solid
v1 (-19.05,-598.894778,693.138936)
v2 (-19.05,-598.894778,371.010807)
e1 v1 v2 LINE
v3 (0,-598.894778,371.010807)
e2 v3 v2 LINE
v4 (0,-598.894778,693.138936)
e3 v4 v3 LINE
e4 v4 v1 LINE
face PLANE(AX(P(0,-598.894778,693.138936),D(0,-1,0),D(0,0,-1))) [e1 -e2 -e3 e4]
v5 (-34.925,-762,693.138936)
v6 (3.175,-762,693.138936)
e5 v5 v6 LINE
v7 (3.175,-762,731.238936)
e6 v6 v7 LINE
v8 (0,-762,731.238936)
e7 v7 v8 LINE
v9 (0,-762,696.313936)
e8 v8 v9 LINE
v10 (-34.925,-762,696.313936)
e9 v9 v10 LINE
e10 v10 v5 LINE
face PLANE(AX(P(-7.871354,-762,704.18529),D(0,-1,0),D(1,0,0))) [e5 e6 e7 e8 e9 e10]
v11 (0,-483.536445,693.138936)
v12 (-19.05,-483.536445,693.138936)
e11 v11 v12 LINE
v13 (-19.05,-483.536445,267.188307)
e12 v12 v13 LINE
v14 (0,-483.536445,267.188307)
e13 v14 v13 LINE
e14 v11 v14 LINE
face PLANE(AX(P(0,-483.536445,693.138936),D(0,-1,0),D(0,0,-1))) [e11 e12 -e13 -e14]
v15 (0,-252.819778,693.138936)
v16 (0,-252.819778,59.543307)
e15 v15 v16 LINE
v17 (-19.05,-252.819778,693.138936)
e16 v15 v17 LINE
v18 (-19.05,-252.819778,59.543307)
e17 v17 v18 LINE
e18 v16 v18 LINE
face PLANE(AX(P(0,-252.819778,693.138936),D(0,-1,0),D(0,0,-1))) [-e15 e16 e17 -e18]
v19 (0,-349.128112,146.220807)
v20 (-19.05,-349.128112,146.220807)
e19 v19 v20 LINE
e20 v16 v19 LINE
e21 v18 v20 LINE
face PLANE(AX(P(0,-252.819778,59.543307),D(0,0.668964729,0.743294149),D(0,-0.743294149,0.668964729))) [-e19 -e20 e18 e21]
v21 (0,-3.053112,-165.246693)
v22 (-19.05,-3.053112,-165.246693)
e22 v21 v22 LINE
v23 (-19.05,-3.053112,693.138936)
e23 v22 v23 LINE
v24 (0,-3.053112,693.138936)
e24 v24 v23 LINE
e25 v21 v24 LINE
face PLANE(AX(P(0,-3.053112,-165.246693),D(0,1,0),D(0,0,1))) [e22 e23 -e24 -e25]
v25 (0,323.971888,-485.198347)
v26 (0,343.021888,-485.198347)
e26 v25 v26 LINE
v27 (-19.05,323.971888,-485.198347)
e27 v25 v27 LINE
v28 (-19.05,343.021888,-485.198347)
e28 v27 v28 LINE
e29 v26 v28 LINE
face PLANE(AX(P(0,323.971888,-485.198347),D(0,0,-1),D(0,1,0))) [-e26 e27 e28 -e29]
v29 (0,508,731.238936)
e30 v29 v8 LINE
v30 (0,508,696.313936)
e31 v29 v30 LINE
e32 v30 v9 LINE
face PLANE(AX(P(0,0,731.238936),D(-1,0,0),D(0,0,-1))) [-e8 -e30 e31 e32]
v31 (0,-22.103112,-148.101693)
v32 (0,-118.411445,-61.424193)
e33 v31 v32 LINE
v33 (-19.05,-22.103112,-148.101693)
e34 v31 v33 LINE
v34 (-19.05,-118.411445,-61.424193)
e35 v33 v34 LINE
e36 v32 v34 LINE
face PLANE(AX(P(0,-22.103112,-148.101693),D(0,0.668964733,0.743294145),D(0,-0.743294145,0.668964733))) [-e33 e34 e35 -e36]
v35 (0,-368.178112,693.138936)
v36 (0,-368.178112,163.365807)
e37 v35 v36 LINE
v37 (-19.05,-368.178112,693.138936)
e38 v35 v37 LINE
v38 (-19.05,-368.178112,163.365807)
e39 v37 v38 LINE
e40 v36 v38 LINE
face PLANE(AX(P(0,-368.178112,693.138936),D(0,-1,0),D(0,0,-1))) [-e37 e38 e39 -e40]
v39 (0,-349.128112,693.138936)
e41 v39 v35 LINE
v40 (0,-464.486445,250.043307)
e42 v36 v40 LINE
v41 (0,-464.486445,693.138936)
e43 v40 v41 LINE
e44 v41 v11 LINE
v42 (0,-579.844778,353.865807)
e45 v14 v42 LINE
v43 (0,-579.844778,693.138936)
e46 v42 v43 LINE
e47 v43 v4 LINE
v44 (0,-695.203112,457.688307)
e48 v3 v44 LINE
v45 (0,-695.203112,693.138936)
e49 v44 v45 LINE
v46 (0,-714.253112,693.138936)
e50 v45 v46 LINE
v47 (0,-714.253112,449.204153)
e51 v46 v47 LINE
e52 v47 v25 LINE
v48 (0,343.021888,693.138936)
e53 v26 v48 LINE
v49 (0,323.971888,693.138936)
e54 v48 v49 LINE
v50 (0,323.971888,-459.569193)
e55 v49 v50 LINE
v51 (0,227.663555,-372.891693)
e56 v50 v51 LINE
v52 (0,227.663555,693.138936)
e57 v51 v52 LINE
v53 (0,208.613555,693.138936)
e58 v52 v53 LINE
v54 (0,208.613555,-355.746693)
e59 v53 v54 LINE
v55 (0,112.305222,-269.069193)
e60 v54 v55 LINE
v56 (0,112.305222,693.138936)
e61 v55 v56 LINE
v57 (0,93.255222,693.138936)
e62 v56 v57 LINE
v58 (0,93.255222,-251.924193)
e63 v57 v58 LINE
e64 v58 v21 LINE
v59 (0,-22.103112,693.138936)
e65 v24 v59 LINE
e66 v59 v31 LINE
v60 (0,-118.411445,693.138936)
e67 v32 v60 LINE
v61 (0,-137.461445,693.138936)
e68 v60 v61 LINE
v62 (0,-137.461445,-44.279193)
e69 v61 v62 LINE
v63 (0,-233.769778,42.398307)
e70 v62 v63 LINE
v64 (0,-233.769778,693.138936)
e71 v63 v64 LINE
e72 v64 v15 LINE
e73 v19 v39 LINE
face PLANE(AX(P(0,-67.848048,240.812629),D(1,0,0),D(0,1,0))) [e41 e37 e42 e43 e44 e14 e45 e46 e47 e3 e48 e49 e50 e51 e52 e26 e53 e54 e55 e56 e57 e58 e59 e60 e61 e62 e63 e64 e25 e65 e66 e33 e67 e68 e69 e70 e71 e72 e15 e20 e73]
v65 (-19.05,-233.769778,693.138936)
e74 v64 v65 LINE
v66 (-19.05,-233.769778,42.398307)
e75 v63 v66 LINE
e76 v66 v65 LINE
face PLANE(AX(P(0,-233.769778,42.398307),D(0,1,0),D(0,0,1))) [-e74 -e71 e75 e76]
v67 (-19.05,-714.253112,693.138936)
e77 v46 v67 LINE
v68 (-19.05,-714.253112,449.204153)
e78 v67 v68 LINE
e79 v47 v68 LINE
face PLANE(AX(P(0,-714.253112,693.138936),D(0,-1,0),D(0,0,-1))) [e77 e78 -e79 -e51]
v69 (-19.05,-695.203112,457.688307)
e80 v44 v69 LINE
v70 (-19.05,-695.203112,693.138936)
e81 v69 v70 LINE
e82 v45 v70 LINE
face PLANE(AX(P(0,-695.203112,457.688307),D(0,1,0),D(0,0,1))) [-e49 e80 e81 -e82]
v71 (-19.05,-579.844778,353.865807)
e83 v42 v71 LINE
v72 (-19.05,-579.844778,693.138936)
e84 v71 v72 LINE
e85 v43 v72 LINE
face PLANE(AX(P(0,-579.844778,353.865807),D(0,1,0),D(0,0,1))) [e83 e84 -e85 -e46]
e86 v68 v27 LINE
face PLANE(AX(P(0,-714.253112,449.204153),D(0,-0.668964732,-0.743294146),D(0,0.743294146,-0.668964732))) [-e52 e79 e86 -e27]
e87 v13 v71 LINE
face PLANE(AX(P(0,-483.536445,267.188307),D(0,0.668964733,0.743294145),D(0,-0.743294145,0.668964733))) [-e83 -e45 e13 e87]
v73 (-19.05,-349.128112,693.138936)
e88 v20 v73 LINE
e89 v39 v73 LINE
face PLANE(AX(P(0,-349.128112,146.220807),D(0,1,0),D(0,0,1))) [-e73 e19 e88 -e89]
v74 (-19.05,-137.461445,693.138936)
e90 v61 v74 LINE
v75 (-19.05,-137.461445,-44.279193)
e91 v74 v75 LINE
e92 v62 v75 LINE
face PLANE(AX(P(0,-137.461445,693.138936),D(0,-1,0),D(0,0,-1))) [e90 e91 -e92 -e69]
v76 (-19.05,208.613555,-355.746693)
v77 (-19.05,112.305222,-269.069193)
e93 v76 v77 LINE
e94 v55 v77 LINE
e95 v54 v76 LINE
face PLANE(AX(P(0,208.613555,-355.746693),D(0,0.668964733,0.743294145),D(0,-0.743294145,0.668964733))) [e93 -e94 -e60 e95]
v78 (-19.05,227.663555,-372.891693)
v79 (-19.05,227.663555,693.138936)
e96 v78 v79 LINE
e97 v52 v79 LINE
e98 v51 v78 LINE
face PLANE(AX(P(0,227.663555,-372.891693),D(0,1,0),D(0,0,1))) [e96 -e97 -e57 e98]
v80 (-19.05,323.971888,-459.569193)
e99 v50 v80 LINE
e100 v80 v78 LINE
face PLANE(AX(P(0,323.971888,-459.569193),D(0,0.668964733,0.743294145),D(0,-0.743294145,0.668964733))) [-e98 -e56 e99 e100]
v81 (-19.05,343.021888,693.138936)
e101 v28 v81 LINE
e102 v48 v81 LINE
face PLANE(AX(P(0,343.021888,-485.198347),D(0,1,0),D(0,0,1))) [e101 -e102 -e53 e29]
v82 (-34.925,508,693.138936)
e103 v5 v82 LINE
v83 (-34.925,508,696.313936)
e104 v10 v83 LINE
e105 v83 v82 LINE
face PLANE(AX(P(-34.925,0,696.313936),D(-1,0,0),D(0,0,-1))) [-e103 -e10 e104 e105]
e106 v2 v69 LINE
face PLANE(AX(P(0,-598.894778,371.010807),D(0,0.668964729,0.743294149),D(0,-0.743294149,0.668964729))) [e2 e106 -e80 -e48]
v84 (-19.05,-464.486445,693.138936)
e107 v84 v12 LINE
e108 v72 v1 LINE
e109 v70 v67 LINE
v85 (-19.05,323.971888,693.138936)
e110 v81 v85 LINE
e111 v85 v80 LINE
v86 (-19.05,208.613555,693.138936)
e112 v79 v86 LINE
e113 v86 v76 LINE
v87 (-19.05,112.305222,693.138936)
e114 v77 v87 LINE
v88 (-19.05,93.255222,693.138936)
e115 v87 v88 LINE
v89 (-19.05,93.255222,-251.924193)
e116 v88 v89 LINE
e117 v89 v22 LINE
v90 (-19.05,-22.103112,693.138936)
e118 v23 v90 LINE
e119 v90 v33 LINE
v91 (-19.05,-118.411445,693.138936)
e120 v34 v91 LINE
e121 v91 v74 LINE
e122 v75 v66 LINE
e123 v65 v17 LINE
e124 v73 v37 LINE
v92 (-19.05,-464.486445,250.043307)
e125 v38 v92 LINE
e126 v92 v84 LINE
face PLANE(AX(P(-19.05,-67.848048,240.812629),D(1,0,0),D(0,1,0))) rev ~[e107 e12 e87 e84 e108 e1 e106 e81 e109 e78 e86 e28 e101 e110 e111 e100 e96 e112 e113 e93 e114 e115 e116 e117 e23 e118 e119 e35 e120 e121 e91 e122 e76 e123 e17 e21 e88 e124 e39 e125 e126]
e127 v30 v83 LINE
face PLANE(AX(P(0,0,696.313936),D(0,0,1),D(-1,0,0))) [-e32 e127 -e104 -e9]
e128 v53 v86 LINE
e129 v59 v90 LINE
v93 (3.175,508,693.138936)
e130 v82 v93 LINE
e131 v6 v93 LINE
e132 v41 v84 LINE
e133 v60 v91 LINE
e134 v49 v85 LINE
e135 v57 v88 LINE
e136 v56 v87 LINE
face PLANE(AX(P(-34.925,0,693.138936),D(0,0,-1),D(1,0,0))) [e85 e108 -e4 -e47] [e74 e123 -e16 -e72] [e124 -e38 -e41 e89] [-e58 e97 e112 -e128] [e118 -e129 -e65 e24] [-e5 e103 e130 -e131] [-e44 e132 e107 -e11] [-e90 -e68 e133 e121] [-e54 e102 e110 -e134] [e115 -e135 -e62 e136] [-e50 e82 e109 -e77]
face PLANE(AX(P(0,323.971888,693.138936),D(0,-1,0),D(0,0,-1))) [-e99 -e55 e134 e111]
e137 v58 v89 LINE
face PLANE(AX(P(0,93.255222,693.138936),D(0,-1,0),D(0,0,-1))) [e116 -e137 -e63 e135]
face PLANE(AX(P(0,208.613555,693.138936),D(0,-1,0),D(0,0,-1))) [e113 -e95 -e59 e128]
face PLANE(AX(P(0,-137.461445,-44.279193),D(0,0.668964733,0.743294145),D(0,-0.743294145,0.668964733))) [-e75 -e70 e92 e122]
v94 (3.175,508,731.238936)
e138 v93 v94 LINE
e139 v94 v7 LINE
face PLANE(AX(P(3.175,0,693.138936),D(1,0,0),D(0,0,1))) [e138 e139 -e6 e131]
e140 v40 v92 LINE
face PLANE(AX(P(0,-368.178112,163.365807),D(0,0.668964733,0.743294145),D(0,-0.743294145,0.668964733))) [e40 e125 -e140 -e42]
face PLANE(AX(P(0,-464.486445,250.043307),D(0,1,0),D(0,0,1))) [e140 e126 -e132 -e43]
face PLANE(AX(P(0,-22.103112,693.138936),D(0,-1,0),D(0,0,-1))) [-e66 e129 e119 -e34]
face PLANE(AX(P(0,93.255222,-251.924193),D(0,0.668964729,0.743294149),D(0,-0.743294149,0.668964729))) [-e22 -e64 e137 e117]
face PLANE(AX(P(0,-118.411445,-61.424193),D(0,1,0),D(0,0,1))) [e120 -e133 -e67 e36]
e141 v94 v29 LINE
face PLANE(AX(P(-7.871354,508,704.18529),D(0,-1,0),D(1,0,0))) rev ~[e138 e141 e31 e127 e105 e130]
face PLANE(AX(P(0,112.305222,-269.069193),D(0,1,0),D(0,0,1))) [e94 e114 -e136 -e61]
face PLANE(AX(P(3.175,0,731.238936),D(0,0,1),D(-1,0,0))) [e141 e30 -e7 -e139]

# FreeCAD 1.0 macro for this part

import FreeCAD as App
import Part
import Sketcher
Q = App.Units.Quantity


def add_polygon(sketch, points):
    """Adds a closed chain of lines whose ends are joined by coincident constraints."""
    first, n = sketch.GeometryCount, len(points)
    for a, b in zip(points, points[1:] + points[:1]):
        sketch.addGeometry(Part.LineSegment(App.Vector(*a, 0), App.Vector(*b, 0)), False)
    for i in range(n):
        sketch.addConstraint(Sketcher.Constraint("Coincident", first + i, 2, first + (i + 1) % n, 1))

doc = App.newDocument("Part")
params = doc.addObject("Spreadsheet::Sheet", "Params")
for row, (alias, value) in enumerate([
    ("sketch1_width", "1.5 in"),
    ("sketch1_width2", "0.125 in"),
    ("pad1_length", "30 in"),
    ("pad1_length2", "20 in"),
    ("sketch2_width", "0.75 in"),
    ("pad2_length", "0.75 in"),
], start=1):
    params.set(f"A{row}", alias)
    params.set(f"B{row}", "=" + value)
    params.setAlias(f"B{row}", alias)

body = doc.addObject("PartDesign::Body", "Body")

# Sketch on XZ plane
sketch1 = body.newObject("Sketcher::SketchObject", "Sketch")
sketch1.AttachmentSupport = (doc.getObject("XZ_Plane"), [""])
sketch1.MapMode = "FlatFace"
add_polygon(sketch1, [(3.2, 693.1), (3.2, 731.2), (0, 731.2), (0, 696.3), (-34.9, 696.3), (-34.9, 693.1)])  # lines 0-5
sketch1.addConstraint(Sketcher.Constraint("Vertical", 0))
sketch1.addConstraint(Sketcher.Constraint("Horizontal", 1))
sketch1.addConstraint(Sketcher.Constraint("Vertical", 2))
sketch1.addConstraint(Sketcher.Constraint("Horizontal", 3))
sketch1.addConstraint(Sketcher.Constraint("Vertical", 4))
sketch1.addConstraint(Sketcher.Constraint("Horizontal", 5))
sketch1.addConstraint(Sketcher.Constraint("PointOnObject", 1, 2, -2))
sketch1.addConstraint(Sketcher.Constraint("Equal", 5, 0))
sketch1.addConstraint(Sketcher.Constraint("Equal", 3, 2))
sketch1.addConstraint(Sketcher.Constraint("DistanceX", 5, 1, 5, 2, Q("1.5 in")))
sketch1.addConstraint(Sketcher.Constraint("DistanceX", 1, 2, 1, 1, Q("0.125 in")))
sketch1.addConstraint(Sketcher.Constraint("DistanceY", -1, 1, 0, 2, Q("731.238936 mm")))
sketch1.setExpression("Constraints[15]", "Params.sketch1_width")
sketch1.setExpression("Constraints[16]", "Params.sketch1_width2")
pad1 = body.newObject("PartDesign::Pad", "Pad")
pad1.Profile = sketch1
pad1.Type = "TwoLengths"
pad1.setExpression("Length", "Params.pad1_length")
pad1.setExpression("Length2", "Params.pad1_length2")

# Sketch on YZ plane
sketch2 = body.newObject("Sketcher::SketchObject", "Sketch001")
sketch2.AttachmentSupport = (doc.getObject("YZ_Plane"), [""])
sketch2.MapMode = "FlatFace"
add_polygon(sketch2, [(-695, 693), (-714, 693), (-714, 449), (324, -485), (343, -485), (343, 693), (324, 693), (324, -460), (228, -373), (228, 693), (209, 693), (209, -356), (112, -269), (112, 693), (93, 693), (93, -252), (-3, -165), (-3, 693), (-22, 693), (-22, -148), (-118, -61), (-118, 693), (-137, 693), (-137, -44), (-234, 42), (-234, 693), (-253, 693), (-253, 60), (-349, 146), (-349, 693), (-368, 693), (-368, 163), (-464, 250), (-464, 693), (-484, 693), (-484, 267), (-580, 354), (-580, 693), (-599, 693), (-599, 371), (-695, 458)])  # lines 0-40
sketch2.addConstraint(Sketcher.Constraint("Horizontal", 0))
sketch2.addConstraint(Sketcher.Constraint("Vertical", 1))
sketch2.addConstraint(Sketcher.Constraint("Horizontal", 3))
sketch2.addConstraint(Sketcher.Constraint("Vertical", 4))
sketch2.addConstraint(Sketcher.Constraint("Horizontal", 5))
sketch2.addConstraint(Sketcher.Constraint("Vertical", 6))
sketch2.addConstraint(Sketcher.Constraint("Vertical", 8))
sketch2.addConstraint(Sketcher.Constraint("Horizontal", 9))
sketch2.addConstraint(Sketcher.Constraint("Vertical", 10))
sketch2.addConstraint(Sketcher.Constraint("Vertical", 12))
sketch2.addConstraint(Sketcher.Constraint("Horizontal", 13))
sketch2.addConstraint(Sketcher.Constraint("Vertical", 14))
sketch2.addConstraint(Sketcher.Constraint("Vertical", 16))
sketch2.addConstraint(Sketcher.Constraint("Horizontal", 17))
sketch2.addConstraint(Sketcher.Constraint("Vertical", 18))
sketch2.addConstraint(Sketcher.Constraint("Vertical", 20))
sketch2.addConstraint(Sketcher.Constraint("Horizontal", 21))
sketch2.addConstraint(Sketcher.Constraint("Vertical", 22))
sketch2.addConstraint(Sketcher.Constraint("Vertical", 24))
sketch2.addConstraint(Sketcher.Constraint("Horizontal", 25))
sketch2.addConstraint(Sketcher.Constraint("Vertical", 26))
sketch2.addConstraint(Sketcher.Constraint("Vertical", 28))
sketch2.addConstraint(Sketcher.Constraint("Horizontal", 29))
sketch2.addConstraint(Sketcher.Constraint("Vertical", 30))
sketch2.addConstraint(Sketcher.Constraint("Vertical", 32))
sketch2.addConstraint(Sketcher.Constraint("Horizontal", 33))
sketch2.addConstraint(Sketcher.Constraint("Vertical", 34))
sketch2.addConstraint(Sketcher.Constraint("Vertical", 36))
sketch2.addConstraint(Sketcher.Constraint("Horizontal", 37))
sketch2.addConstraint(Sketcher.Constraint("Vertical", 38))
sketch2.addConstraint(Sketcher.Constraint("Vertical", 40))
sketch2.addConstraint(Sketcher.Constraint("Parallel", 2, 7))
sketch2.addConstraint(Sketcher.Constraint("Parallel", 7, 11))
sketch2.addConstraint(Sketcher.Constraint("Parallel", 11, 15))
sketch2.addConstraint(Sketcher.Constraint("Parallel", 15, 19))
sketch2.addConstraint(Sketcher.Constraint("Parallel", 19, 23))
sketch2.addConstraint(Sketcher.Constraint("Parallel", 23, 27))
sketch2.addConstraint(Sketcher.Constraint("Parallel", 27, 31))
sketch2.addConstraint(Sketcher.Constraint("Parallel", 31, 35))
sketch2.addConstraint(Sketcher.Constraint("Parallel", 35, 39))
sketch2.addConstraint(Sketcher.Constraint("Horizontal", 0, 2, 4, 2))
sketch2.addConstraint(Sketcher.Constraint("Horizontal", 5, 2, 8, 2))
sketch2.addConstraint(Sketcher.Constraint("Horizontal", 9, 2, 12, 2))
sketch2.addConstraint(Sketcher.Constraint("Horizontal", 13, 2, 16, 2))
sketch2.addConstraint(Sketcher.Constraint("Horizontal", 17, 2, 20, 2))
sketch2.addConstraint(Sketcher.Constraint("Horizontal", 21, 2, 24, 2))
sketch2.addConstraint(Sketcher.Constraint("Horizontal", 25, 2, 28, 2))
sketch2.addConstraint(Sketcher.Constraint("Horizontal", 29, 2, 32, 2))
sketch2.addConstraint(Sketcher.Constraint("Horizontal", 33, 2, 36, 2))
sketch2.addConstraint(Sketcher.Constraint("Vertical", 2, 2, 5, 2))
sketch2.addConstraint(Sketcher.Constraint("Equal", 0, 3))
sketch2.addConstraint(Sketcher.Constraint("Equal", 5, 9))
sketch2.addConstraint(Sketcher.Constraint("Equal", 9, 13))
sketch2.addConstraint(Sketcher.Constraint("Equal", 13, 17))
sketch2.addConstraint(Sketcher.Constraint("Equal", 17, 21))
sketch2.addConstraint(Sketcher.Constraint("Equal", 21, 25))
sketch2.addConstraint(Sketcher.Constraint("Equal", 25, 29))
sketch2.addConstraint(Sketcher.Constraint("Equal", 29, 33))
sketch2.addConstraint(Sketcher.Constraint("Equal", 33, 37))
sketch2.addConstraint(Sketcher.Constraint("Equal", 7, 11))
sketch2.addConstraint(Sketcher.Constraint("Equal", 11, 15))
sketch2.addConstraint(Sketcher.Constraint("Equal", 15, 19))
sketch2.addConstraint(Sketcher.Constraint("Equal", 19, 23))
sketch2.addConstraint(Sketcher.Constraint("Equal", 23, 27))
sketch2.addConstraint(Sketcher.Constraint("Equal", 27, 31))
sketch2.addConstraint(Sketcher.Constraint("Equal", 31, 35))
sketch2.addConstraint(Sketcher.Constraint("Equal", 35, 39))
sketch2.addConstraint(Sketcher.Constraint("DistanceX", 0, 2, 0, 1, Q("0.75 in")))
sketch2.addConstraint(Sketcher.Constraint("DistanceY", 6, 2, 11, 2, Q("7.5 in")))
sketch2.addConstraint(Sketcher.Constraint("DistanceY", 10, 2, 15, 2, Q("7.5 in")))
sketch2.addConstraint(Sketcher.Constraint("DistanceY", 14, 2, 19, 2, Q("7.5 in")))
sketch2.addConstraint(Sketcher.Constraint("DistanceY", 18, 2, 23, 2, Q("7.5 in")))
sketch2.addConstraint(Sketcher.Constraint("DistanceY", 22, 2, 27, 2, Q("7.5 in")))
sketch2.addConstraint(Sketcher.Constraint("DistanceY", 26, 2, 31, 2, Q("7.5 in")))
sketch2.addConstraint(Sketcher.Constraint("DistanceY", 30, 2, 35, 2, Q("7.5 in")))
sketch2.addConstraint(Sketcher.Constraint("DistanceY", 7, 2, 18, 2, Q("8.85 in")))
sketch2.addConstraint(Sketcher.Constraint("DistanceX", 1, 2, 2, 2, Q("40.875 in")))
sketch2.addConstraint(Sketcher.Constraint("DistanceY", 35, 2, 38, 2, Q("0.675 in")))
sketch2.addConstraint(Sketcher.Constraint("DistanceY", 6, 2, 6, 1, Q("1152.708129 mm")))
sketch2.addConstraint(Sketcher.Constraint("DistanceY", 1, 2, 1, 1, Q("243.934783 mm")))
sketch2.addConstraint(Sketcher.Constraint("DistanceX", 0, 2, -1, 1, Q("714.253112 mm")))
sketch2.addConstraint(Sketcher.Constraint("DistanceY", -1, 1, 0, 2, Q("693.138936 mm")))
sketch2.setExpression("Constraints[108]", "Params.sketch2_width")
pad2 = body.newObject("PartDesign::Pad", "Pad001")
pad2.Profile = sketch2
pad2.setExpression("Length", "Params.pad2_length")
pad2.Reversed = True

doc.recompute()
